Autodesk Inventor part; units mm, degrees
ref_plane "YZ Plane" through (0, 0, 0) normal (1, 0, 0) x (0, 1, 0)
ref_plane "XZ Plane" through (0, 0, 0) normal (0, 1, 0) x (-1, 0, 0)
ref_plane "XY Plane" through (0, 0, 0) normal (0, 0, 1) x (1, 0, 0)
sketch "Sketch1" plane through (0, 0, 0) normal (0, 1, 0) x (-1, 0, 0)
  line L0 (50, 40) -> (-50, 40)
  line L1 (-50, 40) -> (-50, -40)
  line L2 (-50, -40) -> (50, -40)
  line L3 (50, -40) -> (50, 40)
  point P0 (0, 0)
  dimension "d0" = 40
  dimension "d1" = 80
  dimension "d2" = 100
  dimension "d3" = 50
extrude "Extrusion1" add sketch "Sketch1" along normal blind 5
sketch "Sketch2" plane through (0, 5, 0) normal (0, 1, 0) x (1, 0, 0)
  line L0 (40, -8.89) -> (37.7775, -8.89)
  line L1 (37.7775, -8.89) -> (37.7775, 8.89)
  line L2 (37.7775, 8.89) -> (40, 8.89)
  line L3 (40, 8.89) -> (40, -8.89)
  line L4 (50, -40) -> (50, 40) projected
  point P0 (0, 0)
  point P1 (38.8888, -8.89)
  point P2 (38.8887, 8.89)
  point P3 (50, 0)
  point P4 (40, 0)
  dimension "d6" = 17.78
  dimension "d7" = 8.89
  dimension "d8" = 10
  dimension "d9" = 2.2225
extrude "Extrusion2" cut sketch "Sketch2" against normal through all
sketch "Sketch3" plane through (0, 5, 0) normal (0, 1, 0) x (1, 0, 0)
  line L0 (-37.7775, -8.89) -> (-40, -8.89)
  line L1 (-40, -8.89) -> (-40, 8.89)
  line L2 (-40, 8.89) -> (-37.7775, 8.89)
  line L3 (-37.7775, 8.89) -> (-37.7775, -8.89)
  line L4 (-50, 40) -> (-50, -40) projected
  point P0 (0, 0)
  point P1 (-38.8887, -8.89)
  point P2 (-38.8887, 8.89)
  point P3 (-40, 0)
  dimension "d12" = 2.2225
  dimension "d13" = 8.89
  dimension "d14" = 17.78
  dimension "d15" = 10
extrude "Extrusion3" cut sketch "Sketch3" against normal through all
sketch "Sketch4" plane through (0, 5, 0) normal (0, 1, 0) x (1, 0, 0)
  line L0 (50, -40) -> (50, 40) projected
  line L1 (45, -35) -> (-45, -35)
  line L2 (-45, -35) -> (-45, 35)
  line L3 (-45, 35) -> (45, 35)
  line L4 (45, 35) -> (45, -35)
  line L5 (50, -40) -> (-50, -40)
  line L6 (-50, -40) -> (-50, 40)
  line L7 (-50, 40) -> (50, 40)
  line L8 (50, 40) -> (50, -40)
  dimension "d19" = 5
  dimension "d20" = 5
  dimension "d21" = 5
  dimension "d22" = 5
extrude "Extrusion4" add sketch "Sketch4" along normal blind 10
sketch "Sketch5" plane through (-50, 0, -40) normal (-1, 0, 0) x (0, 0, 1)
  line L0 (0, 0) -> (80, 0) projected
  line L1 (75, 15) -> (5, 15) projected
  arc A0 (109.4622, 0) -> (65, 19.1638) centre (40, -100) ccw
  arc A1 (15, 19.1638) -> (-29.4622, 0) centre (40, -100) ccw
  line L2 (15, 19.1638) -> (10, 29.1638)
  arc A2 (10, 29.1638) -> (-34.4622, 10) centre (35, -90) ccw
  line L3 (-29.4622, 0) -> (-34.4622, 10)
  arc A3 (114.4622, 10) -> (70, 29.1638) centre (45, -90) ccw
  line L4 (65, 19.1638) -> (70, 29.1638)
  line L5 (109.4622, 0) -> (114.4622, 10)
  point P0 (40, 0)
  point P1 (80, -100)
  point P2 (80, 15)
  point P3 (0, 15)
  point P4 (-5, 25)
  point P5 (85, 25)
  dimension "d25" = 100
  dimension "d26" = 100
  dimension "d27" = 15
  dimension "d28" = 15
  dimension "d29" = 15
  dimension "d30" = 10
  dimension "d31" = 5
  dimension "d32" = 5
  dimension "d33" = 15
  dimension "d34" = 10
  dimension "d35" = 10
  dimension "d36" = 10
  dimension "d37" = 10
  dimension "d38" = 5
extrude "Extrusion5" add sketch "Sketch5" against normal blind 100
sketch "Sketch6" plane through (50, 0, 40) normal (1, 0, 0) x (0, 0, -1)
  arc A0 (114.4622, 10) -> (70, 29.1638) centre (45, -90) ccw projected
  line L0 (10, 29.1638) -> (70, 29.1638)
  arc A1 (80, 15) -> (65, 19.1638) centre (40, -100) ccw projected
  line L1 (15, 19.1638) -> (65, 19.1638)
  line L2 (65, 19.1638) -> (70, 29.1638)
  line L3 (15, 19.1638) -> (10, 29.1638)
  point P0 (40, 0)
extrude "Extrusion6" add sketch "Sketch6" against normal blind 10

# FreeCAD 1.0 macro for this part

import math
import FreeCAD as App
import Part
import Sketcher
from FreeCAD import Vector


def add_polygon(sketch, points):
    """Adds a closed chain of lines whose ends are joined by coincident constraints."""
    first, n = sketch.GeometryCount, len(points)
    for a, b in zip(points, points[1:] + points[:1]):
        sketch.addGeometry(Part.LineSegment(App.Vector(*a, 0), App.Vector(*b, 0)), False)
    for i in range(n):
        sketch.addConstraint(Sketcher.Constraint("Coincident", first + i, 2, first + (i + 1) % n, 1))

doc = App.newDocument("Part")
params = doc.addObject("Spreadsheet::Sheet", "Params")
for row, (alias, value) in enumerate([
    ("sketch1_width", "100 mm"),
    ("sketch1_height", "80 mm"),
    ("pad1_length", "5 mm"),
    ("sketch2_height", "17.78 mm"),
    ("sketch3_height", "17.78 mm"),
    ("sketch4_width", "100 mm"),
    ("sketch4_height", "80 mm"),
    ("pad2_length", "10 mm"),
    ("pad3_length", "100 mm"),
    ("sketch6_height", "60 mm"),
    ("sketch6_height2", "50 mm"),
    ("pad4_length", "10 mm"),
], start=1):
    params.set(f"A{row}", alias)
    params.set(f"B{row}", "=" + value)
    params.setAlias(f"B{row}", alias)

body = doc.addObject("PartDesign::Body", "Body")
body.AllowCompound = True

# Sketch on XZ plane
sketch1 = body.newObject("Sketcher::SketchObject", "Sketch")
sketch1.AttachmentSupport = (doc.getObject("XZ_Plane"), [""])
sketch1.MapMode = "FlatFace"
add_polygon(sketch1, [(-50, -40), (-50, 40), (50, 40), (50, -40)])  # lines 0-3
sketch1.addConstraint([
    Sketcher.Constraint("Vertical", 0),
    Sketcher.Constraint("Horizontal", 1),
    Sketcher.Constraint("Vertical", 2),
    Sketcher.Constraint("Horizontal", 3),
    Sketcher.Constraint("Symmetric", 0, 2, 2, 2, -1, 1),
    Sketcher.Constraint("DistanceX", 1, 1, 1, 2, 100.0),
    Sketcher.Constraint("DistanceY", 0, 1, 0, 2, 80.0),
])
sketch1.setExpression("Constraints[9]", "Params.sketch1_width")
sketch1.setExpression("Constraints[10]", "Params.sketch1_height")
pad1 = body.newObject("PartDesign::Pad", "Pad")
pad1.Profile = sketch1
pad1.setExpression("Length", "Params.pad1_length")
pad1.Reversed = True

# Sketch on XZ plane
sketch2 = body.newObject("Sketcher::SketchObject", "Sketch001")
sketch2.AttachmentSupport = (doc.getObject("XZ_Plane"), [""])
sketch2.MapMode = "FlatFace"
sketch2.AttachmentOffset = App.Placement(Vector(0, 0, -5), App.Rotation())
add_polygon(sketch2, [(37.7775, 8.89), (40, 8.89), (40, -8.89), (37.7775, -8.89)])  # lines 0-3
sketch2.addConstraint([
    Sketcher.Constraint("Horizontal", 0),
    Sketcher.Constraint("Vertical", 1),
    Sketcher.Constraint("Horizontal", 2),
    Sketcher.Constraint("Vertical", 3),
    Sketcher.Constraint("DistanceY", 1, 2, 1, 1, 17.78),
    Sketcher.Constraint("DistanceY", -1, 1, 0, 2, 8.89),
    Sketcher.Constraint("DistanceX", 0, 1, 0, 2, 2.2225),
    Sketcher.Constraint("DistanceX", -1, 1, 0, 2, 40.0),
])
sketch2.setExpression("Constraints[8]", "Params.sketch2_height")
pocket1 = body.newObject("PartDesign::Pocket", "Pocket")
pocket1.Profile = sketch2
pocket1.Type = "ThroughAll"
pocket1.Reversed = True

# Sketch on XZ plane
sketch3 = body.newObject("Sketcher::SketchObject", "Sketch002")
sketch3.AttachmentSupport = (doc.getObject("XZ_Plane"), [""])
sketch3.MapMode = "FlatFace"
sketch3.AttachmentOffset = App.Placement(Vector(0, 0, -5), App.Rotation())
add_polygon(sketch3, [(-40, 8.89), (-37.7775, 8.89), (-37.7775, -8.89), (-40, -8.89)])  # lines 0-3
sketch3.addConstraint([
    Sketcher.Constraint("Horizontal", 0),
    Sketcher.Constraint("Vertical", 1),
    Sketcher.Constraint("Horizontal", 2),
    Sketcher.Constraint("Vertical", 3),
    Sketcher.Constraint("DistanceY", 1, 2, 1, 1, 17.78),
    Sketcher.Constraint("DistanceY", -1, 1, 0, 2, 8.89),
    Sketcher.Constraint("DistanceX", 0, 1, 0, 2, 2.2225),
    Sketcher.Constraint("DistanceX", 2, 2, -1, 1, 40.0),
])
sketch3.setExpression("Constraints[8]", "Params.sketch3_height")
pocket2 = body.newObject("PartDesign::Pocket", "Pocket001")
pocket2.Profile = sketch3
pocket2.Type = "ThroughAll"
pocket2.Reversed = True

# Sketch on XZ plane
sketch4 = body.newObject("Sketcher::SketchObject", "Sketch003")
sketch4.AttachmentSupport = (doc.getObject("XZ_Plane"), [""])
sketch4.MapMode = "FlatFace"
sketch4.AttachmentOffset = App.Placement(Vector(0, 0, -5), App.Rotation())
add_polygon(sketch4, [(-50, 40), (50, 40), (50, -40), (-50, -40)])  # lines 0-3
add_polygon(sketch4, [(45, -35), (45, 35), (-45, 35), (-45, -35)])  # lines 4-7
sketch4.addConstraint([
    Sketcher.Constraint("Horizontal", 0),
    Sketcher.Constraint("Vertical", 1),
    Sketcher.Constraint("Horizontal", 2),
    Sketcher.Constraint("Vertical", 3),
    Sketcher.Constraint("Vertical", 4),
    Sketcher.Constraint("Horizontal", 5),
    Sketcher.Constraint("Vertical", 6),
    Sketcher.Constraint("Horizontal", 7),
    Sketcher.Constraint("Symmetric", 0, 2, 2, 2, -1, 1),
    Sketcher.Constraint("Symmetric", 4, 2, 6, 2, -1, 1),
    Sketcher.Constraint("DistanceX", 4, 2, 0, 2, 5.0),
    Sketcher.Constraint("DistanceY", 4, 2, 0, 2, 5.0),
    Sketcher.Constraint("DistanceX", 0, 1, 0, 2, 100.0),
    Sketcher.Constraint("DistanceY", 1, 2, 1, 1, 80.0),
])
sketch4.setExpression("Constraints[20]", "Params.sketch4_width")
sketch4.setExpression("Constraints[21]", "Params.sketch4_height")
pad2 = body.newObject("PartDesign::Pad", "Pad001")
pad2.Profile = sketch4
pad2.setExpression("Length", "Params.pad2_length")
pad2.Reversed = True

# Sketch on YZ plane
sketch5 = body.newObject("Sketcher::SketchObject", "Sketch004")
sketch5.AttachmentSupport = (doc.getObject("YZ_Plane"), [""])
sketch5.MapMode = "FlatFace"
sketch5.AttachmentOffset = App.Placement(Vector(0, 0, -50), App.Rotation())
sketch5.addGeometry([
    Part.ArcOfCircle(Part.Circle(Vector(-100.001265, -0.000703, 0), Vector(0, 0, 1), 121.759385), math.radians(11.848745), math.radians(34.784626)),  # 0
    Part.LineSegment(Vector(0, 69.4622, 0), Vector(10, 74.4622, 0)),  # 1
    Part.ArcOfCircle(Part.Circle(Vector(-90.001265, 4.999297, 0), Vector(0, 0, 1), 121.759385), math.radians(11.848745), math.radians(34.784626)),  # 2
    Part.LineSegment(Vector(29.1638, 30, 0), Vector(19.1638, 25, 0)),  # 3
    Part.ArcOfCircle(Part.Circle(Vector(-99.99862, -0.000437, 0), Vector(0, 0, 1), 121.756563), math.radians(-34.784896), math.radians(-11.848475)),  # 4
    Part.LineSegment(Vector(19.1638, -25, 0), Vector(29.1638, -30, 0)),  # 5
    Part.ArcOfCircle(Part.Circle(Vector(-89.99862, -5.000437, 0), Vector(0, 0, 1), 121.756563), math.radians(-34.784896), math.radians(-11.848475)),  # 6
    Part.LineSegment(Vector(10, -74.4622, 0), Vector(0, -69.4622, 0)),  # 7
], False)
sketch5.addConstraint([
    Sketcher.Constraint("Coincident", 0, 2, 1, 1),
    Sketcher.Constraint("Coincident", 1, 2, 2, 2),
    Sketcher.Constraint("Coincident", 2, 1, 3, 1),
    Sketcher.Constraint("Coincident", 3, 2, 0, 1),
    Sketcher.Constraint("Coincident", 4, 2, 5, 1),
    Sketcher.Constraint("Coincident", 5, 2, 6, 2),
    Sketcher.Constraint("Coincident", 6, 1, 7, 1),
    Sketcher.Constraint("Coincident", 7, 2, 4, 1),
    Sketcher.Constraint("Equal", 0, 2),
    Sketcher.Constraint("Equal", 4, 6),
    Sketcher.Constraint("Symmetric", 0, 2, 7, 2, -1, 1),
    Sketcher.Constraint("Symmetric", 3, 2, 4, 2, -1),
    Sketcher.Constraint("Symmetric", 2, 1, 5, 2, -1),
    Sketcher.Constraint("Symmetric", 1, 2, 6, 1, -1),
    Sketcher.Constraint("PointOnObject", 0, 2, -2),
    Sketcher.Constraint("Parallel", 1, 3),
    Sketcher.Constraint("Equal", 1, 3),
    Sketcher.Constraint("DistanceX", -1, 1, 1, 2, 10.0),
    Sketcher.Constraint("DistanceY", 0, 3, 2, 3, 5.0),
    Sketcher.Constraint("DistanceY", -1, 1, 2, 1, 30.0),
    Sketcher.Constraint("DistanceY", 6, 3, -1, 1, 5.0004),
    Sketcher.Constraint("Radius", 0, 121.7594),
    Sketcher.Constraint("Radius", 4, 121.7566),
    Sketcher.Constraint("DistanceY", 2, 3, 0, 2, 64.463),
])
pad3 = body.newObject("PartDesign::Pad", "Pad002")
pad3.Profile = sketch5
pad3.setExpression("Length", "Params.pad3_length")

# Sketch on YZ plane
sketch6 = body.newObject("Sketcher::SketchObject", "Sketch005")
sketch6.AttachmentSupport = (doc.getObject("YZ_Plane"), [""])
sketch6.MapMode = "FlatFace"
sketch6.AttachmentOffset = App.Placement(Vector(0, 0, 50), App.Rotation())
add_polygon(sketch6, [(29.1638, -30), (29.1638, 30), (19.1638, 25), (19.1638, -25)])  # lines 0-3
sketch6.addConstraint([
    Sketcher.Constraint("Vertical", 0),
    Sketcher.Constraint("Vertical", 2),
    Sketcher.Constraint("Equal", 1, 3),
    Sketcher.Constraint("DistanceY", 0, 1, 0, 2, 60.0),
    Sketcher.Constraint("DistanceY", 2, 2, 2, 1, 50.0),
    Sketcher.Constraint("DistanceY", -1, 1, 0, 2, 30.0),
    Sketcher.Constraint("DistanceX", 1, 2, 0, 2, 10.0),
    Sketcher.Constraint("DistanceX", -1, 1, 0, 2, 29.1638),
])
sketch6.setExpression("Constraints[7]", "Params.sketch6_height")
sketch6.setExpression("Constraints[8]", "Params.sketch6_height2")
pad4 = body.newObject("PartDesign::Pad", "Pad003")
pad4.Profile = sketch6
pad4.setExpression("Length", "Params.pad4_length")
pad4.Reversed = True

doc.recompute()
